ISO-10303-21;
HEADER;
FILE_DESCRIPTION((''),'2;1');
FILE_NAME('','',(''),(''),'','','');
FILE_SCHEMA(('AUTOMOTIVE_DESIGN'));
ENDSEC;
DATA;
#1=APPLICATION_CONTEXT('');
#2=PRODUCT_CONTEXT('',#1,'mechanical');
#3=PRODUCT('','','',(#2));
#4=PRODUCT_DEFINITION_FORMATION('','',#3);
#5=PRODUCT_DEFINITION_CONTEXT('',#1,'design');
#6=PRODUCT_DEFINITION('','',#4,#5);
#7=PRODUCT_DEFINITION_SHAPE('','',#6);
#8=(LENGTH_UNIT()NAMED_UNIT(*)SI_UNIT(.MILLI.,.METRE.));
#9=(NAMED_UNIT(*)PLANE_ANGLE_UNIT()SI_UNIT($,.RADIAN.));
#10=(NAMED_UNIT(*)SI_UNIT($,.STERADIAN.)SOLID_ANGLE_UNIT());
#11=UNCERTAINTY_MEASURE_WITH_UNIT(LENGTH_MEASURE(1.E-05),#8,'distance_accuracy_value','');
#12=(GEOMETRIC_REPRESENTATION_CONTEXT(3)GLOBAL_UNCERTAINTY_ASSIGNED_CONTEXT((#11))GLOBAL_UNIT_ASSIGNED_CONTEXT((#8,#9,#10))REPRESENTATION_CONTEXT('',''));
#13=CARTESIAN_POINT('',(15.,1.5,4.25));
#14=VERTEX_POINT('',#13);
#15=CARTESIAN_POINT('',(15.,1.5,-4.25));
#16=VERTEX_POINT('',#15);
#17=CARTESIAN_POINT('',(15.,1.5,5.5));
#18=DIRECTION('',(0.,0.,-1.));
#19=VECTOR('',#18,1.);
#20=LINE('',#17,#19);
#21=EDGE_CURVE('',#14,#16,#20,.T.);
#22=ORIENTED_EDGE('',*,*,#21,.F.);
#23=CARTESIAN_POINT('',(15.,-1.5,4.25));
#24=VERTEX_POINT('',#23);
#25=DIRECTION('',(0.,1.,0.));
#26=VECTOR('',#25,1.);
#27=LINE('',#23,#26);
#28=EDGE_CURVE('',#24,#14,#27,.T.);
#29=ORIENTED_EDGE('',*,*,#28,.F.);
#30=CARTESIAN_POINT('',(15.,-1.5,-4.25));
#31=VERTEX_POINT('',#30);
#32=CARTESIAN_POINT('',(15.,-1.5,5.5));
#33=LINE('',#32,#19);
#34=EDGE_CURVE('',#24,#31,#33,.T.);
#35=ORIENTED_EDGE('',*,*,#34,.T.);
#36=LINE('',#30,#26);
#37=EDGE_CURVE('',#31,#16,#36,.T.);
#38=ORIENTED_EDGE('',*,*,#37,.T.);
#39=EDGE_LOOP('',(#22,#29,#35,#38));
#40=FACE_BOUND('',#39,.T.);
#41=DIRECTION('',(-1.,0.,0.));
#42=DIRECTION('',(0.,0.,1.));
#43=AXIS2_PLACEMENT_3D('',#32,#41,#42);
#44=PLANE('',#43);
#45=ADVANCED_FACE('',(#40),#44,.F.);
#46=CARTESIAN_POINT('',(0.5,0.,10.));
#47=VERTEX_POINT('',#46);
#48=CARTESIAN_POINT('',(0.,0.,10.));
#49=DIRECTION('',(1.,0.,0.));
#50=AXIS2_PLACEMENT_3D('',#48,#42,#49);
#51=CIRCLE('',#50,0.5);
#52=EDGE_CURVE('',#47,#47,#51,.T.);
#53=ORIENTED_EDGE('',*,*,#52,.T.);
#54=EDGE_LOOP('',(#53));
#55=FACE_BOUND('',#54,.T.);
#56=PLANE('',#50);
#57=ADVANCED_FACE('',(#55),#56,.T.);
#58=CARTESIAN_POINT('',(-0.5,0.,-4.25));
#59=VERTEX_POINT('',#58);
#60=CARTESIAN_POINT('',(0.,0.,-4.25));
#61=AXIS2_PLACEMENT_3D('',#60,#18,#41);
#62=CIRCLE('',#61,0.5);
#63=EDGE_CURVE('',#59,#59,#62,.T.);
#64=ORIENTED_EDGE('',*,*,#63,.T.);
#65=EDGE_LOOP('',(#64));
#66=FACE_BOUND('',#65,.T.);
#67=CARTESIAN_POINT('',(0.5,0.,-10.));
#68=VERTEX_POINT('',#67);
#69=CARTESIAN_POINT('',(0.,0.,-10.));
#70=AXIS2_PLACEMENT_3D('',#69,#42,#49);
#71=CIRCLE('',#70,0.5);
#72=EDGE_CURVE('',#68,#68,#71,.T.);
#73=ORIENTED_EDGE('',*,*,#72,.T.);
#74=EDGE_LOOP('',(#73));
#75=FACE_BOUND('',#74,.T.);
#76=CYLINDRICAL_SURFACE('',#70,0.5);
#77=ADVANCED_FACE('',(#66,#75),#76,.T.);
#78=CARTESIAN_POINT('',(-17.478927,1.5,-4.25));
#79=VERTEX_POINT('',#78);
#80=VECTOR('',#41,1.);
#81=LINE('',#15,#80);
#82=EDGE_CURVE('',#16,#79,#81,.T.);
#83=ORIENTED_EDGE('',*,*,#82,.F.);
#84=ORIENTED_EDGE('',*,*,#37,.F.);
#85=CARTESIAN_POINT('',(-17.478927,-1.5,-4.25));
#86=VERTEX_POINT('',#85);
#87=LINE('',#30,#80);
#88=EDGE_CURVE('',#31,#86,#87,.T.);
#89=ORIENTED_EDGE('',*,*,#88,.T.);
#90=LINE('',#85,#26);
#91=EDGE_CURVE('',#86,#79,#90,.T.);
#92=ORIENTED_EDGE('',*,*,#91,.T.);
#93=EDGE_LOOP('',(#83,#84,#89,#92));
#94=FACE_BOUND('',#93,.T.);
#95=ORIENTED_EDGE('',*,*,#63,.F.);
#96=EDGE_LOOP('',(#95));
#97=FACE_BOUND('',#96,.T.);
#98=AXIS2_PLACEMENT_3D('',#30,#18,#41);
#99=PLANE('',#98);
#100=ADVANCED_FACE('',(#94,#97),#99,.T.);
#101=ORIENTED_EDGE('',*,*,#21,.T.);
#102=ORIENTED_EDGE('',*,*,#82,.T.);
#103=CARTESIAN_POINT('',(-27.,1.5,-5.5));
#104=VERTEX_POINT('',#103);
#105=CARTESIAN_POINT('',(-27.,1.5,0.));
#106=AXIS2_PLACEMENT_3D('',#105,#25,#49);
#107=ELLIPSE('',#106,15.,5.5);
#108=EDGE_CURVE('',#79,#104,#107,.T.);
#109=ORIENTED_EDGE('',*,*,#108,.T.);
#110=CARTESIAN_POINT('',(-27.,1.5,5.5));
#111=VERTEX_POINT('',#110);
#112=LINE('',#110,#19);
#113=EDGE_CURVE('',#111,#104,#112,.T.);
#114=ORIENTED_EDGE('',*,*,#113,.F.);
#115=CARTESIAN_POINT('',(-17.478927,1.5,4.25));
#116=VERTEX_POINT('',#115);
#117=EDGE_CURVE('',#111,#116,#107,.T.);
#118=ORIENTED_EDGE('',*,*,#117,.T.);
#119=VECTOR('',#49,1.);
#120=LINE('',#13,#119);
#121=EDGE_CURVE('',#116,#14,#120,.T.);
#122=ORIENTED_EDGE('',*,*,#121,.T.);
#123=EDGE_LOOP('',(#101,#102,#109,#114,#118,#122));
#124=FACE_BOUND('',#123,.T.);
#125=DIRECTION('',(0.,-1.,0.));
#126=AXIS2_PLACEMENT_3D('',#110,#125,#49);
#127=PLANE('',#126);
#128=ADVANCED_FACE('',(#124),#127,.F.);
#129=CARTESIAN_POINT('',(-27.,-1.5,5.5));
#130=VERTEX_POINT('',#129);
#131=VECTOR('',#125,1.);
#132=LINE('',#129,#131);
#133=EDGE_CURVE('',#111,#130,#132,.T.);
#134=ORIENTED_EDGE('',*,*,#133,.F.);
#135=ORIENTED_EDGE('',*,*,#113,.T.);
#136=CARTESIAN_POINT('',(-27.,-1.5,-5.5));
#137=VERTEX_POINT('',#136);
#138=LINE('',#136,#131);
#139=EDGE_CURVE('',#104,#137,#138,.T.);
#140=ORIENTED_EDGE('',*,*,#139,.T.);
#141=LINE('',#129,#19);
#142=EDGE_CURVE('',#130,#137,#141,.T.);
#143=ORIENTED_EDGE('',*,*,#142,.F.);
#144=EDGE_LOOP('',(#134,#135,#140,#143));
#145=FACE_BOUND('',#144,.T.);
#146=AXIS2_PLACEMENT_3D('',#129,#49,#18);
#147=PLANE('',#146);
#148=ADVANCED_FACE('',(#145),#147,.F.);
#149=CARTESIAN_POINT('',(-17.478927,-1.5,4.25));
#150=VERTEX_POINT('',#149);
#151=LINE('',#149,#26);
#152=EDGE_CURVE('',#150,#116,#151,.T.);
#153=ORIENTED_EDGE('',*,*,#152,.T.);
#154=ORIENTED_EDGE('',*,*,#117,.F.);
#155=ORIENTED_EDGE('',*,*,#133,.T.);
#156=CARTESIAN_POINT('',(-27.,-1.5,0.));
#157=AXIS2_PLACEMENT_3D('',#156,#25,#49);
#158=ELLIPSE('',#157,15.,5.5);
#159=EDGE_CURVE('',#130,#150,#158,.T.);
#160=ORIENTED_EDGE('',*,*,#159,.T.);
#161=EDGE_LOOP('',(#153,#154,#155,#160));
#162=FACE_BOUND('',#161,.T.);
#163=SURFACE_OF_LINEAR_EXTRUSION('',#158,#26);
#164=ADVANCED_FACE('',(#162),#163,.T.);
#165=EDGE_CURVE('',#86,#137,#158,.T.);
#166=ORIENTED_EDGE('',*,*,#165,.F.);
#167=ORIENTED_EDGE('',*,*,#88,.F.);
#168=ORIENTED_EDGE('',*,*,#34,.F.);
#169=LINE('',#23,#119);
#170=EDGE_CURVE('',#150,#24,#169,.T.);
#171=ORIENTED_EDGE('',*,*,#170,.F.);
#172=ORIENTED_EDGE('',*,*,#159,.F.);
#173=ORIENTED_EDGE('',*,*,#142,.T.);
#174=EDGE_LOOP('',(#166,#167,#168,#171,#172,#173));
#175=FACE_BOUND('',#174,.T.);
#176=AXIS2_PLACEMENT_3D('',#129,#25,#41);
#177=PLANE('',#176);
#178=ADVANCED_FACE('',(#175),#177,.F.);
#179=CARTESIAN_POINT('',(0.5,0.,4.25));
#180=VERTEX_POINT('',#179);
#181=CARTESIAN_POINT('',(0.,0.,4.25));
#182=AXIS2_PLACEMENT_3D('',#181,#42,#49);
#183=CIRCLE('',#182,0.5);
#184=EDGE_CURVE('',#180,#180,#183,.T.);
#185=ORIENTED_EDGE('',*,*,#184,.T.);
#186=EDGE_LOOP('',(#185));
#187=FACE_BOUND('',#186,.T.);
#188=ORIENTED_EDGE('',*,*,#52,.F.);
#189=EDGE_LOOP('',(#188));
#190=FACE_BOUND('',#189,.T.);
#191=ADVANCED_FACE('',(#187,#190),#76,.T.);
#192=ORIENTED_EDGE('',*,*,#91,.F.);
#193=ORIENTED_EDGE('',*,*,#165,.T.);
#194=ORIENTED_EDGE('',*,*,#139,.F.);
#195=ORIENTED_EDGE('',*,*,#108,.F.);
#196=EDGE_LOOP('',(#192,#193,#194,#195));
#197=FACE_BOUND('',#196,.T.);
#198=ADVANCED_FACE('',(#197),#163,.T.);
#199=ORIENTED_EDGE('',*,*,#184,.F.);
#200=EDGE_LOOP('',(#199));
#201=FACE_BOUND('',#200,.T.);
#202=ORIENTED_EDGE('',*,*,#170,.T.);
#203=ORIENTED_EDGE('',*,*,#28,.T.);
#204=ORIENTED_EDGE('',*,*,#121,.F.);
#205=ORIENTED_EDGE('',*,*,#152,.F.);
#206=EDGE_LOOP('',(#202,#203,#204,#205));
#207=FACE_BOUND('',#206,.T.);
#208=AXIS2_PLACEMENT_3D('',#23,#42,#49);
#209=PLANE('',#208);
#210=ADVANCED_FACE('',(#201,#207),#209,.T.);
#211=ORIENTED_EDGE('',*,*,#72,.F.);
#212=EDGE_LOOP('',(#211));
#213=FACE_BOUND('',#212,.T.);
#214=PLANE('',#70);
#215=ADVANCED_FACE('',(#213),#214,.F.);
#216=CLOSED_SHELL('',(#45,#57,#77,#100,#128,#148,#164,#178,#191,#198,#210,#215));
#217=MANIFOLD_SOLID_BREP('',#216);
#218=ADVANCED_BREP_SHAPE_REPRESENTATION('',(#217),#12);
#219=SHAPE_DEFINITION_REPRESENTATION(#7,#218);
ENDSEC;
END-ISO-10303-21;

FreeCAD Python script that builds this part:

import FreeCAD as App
import Part
import Sketcher
Q = App.Units.Quantity


def add_polygon(sketch, points):
    """Adds a closed chain of lines whose ends are joined by coincident constraints."""
    first, n = sketch.GeometryCount, len(points)
    for a, b in zip(points, points[1:] + points[:1]):
        sketch.addGeometry(Part.LineSegment(App.Vector(*a, 0), App.Vector(*b, 0)), False)
    for i in range(n):
        sketch.addConstraint(Sketcher.Constraint("Coincident", first + i, 2, first + (i + 1) % n, 1))

doc = App.newDocument("Part")
body = doc.addObject("PartDesign::Body", "Body")

# Sketch on XY plane
sketch1 = body.newObject("Sketcher::SketchObject", "Sketch")
sketch1.AttachmentSupport = (doc.getObject("XY_Plane"), [""])
sketch1.MapMode = "FlatFace"
add_polygon(sketch1, [(-27, 1.5), (-27, -1.5), (15, -1.5), (15, 1.5)])  # lines 0-3
sketch1.addConstraint([
    Sketcher.Constraint("Vertical", 0),
    Sketcher.Constraint("Horizontal", 1),
    Sketcher.Constraint("Vertical", 2),
    Sketcher.Constraint("Horizontal", 3),
    Sketcher.Constraint("DistanceX", 1, 1, 1, 2, Q("42 mm")),
    Sketcher.Constraint("DistanceY", 0, 2, 0, 1, Q("3 mm")),
    Sketcher.Constraint("DistanceX", 0, 2, -1, 1, Q("27 mm")),
    Sketcher.Constraint("DistanceY", 0, 2, -1, 1, Q("1.5 mm")),
])
pad1 = body.newObject("PartDesign::Pad", "Pad")
pad1.Profile = sketch1
pad1.Type = "TwoLengths"
pad1.Length = 5.5
pad1.Length2 = 5.5

# Sketch on XZ plane
sketch2 = body.newObject("Sketcher::SketchObject", "Sketch001")
sketch2.AttachmentSupport = (doc.getObject("XZ_Plane"), [""])
sketch2.MapMode = "FlatFace"
sketch2.AttachmentOffset = App.Placement(App.Vector(0, 0, -1.5), App.Rotation())
add_polygon(sketch2, [(-32.352, -10.852), (-32.352, 10.852), (20.352, 10.852), (20.352, -10.852)])  # lines 0-3
sketch2.addGeometry(Part.LineSegment(App.Vector(15, -4.25, 0), App.Vector(15, 4.25, 0)), False)  # 4
sketch2.addGeometry(Part.LineSegment(App.Vector(15, 4.25, 0), App.Vector(-17.478927, 4.25, 0)), False)  # 5
sketch2.addGeometry(Part.BSplineCurve([App.Vector(-27, 5.5, 0), App.Vector(-21.629138, 5.5, 0), App.Vector(-17.478927, 4.25, 0)], [3, 3], [4.71238898, 5.400058632], False, 2, [1, 0.941468872, 1], False), False)  # 6
sketch2.addGeometry(Part.LineSegment(App.Vector(-27, 5.5, 0), App.Vector(-27, -5.5, 0)), False)  # 7
sketch2.addGeometry(Part.BSplineCurve([App.Vector(-17.478927, -4.25, 0), App.Vector(-21.629138, -5.5, 0), App.Vector(-27, -5.5, 0)], [3, 3], [0.883126675, 1.570796327], False, 2, [1, 0.941468872, 1], False), False)  # 8
sketch2.addGeometry(Part.LineSegment(App.Vector(-17.478927, -4.25, 0), App.Vector(15, -4.25, 0)), False)  # 9
sketch2.addConstraint([
    Sketcher.Constraint("Block", 6),
    Sketcher.Constraint("Block", 8),
    Sketcher.Constraint("Coincident", 4, 2, 5, 1),
    Sketcher.Constraint("Coincident", 5, 2, 6, 2),
    Sketcher.Constraint("Coincident", 6, 1, 7, 1),
    Sketcher.Constraint("Coincident", 7, 2, 8, 2),
    Sketcher.Constraint("Coincident", 8, 1, 9, 1),
    Sketcher.Constraint("Coincident", 9, 2, 4, 1),
    Sketcher.Constraint("Vertical", 0),
    Sketcher.Constraint("Horizontal", 1),
    Sketcher.Constraint("Vertical", 2),
    Sketcher.Constraint("Horizontal", 3),
    Sketcher.Constraint("Vertical", 4),
    Sketcher.Constraint("Horizontal", 5),
    Sketcher.Constraint("Horizontal", 9),
    Sketcher.Constraint("DistanceX", -1, 1, 4, 2, Q("15 mm")),
    Sketcher.Constraint("DistanceX", 1, 1, 1, 2, Q("52.704 mm")),
    Sketcher.Constraint("DistanceY", 0, 1, 0, 2, Q("21.704 mm")),
    Sketcher.Constraint("DistanceX", 0, 2, -1, 1, Q("32.352 mm")),
    Sketcher.Constraint("DistanceY", -1, 1, 0, 2, Q("10.852 mm")),
])
pocket1 = body.newObject("PartDesign::Pocket", "Pocket")
pocket1.Profile = sketch2
pocket1.Type = "ThroughAll"
pocket1.Reversed = True

# Sketch on XY plane
sketch3 = body.newObject("Sketcher::SketchObject", "Sketch002")
sketch3.AttachmentSupport = (doc.getObject("XY_Plane"), [""])
sketch3.MapMode = "FlatFace"
sketch3.addGeometry(Part.Circle(App.Vector(0, 0, 0), App.Vector(0, 0, 1), 0.5), False)
sketch3.addConstraint([
    Sketcher.Constraint("Coincident", 0, 3, -1, 1),
    Sketcher.Constraint("Diameter", 0, Q("1 mm")),
])
pad2 = body.newObject("PartDesign::Pad", "Pad001")
pad2.Profile = sketch3
pad2.Type = "TwoLengths"
pad2.Length = 10
pad2.Length2 = 10

doc.recompute()
